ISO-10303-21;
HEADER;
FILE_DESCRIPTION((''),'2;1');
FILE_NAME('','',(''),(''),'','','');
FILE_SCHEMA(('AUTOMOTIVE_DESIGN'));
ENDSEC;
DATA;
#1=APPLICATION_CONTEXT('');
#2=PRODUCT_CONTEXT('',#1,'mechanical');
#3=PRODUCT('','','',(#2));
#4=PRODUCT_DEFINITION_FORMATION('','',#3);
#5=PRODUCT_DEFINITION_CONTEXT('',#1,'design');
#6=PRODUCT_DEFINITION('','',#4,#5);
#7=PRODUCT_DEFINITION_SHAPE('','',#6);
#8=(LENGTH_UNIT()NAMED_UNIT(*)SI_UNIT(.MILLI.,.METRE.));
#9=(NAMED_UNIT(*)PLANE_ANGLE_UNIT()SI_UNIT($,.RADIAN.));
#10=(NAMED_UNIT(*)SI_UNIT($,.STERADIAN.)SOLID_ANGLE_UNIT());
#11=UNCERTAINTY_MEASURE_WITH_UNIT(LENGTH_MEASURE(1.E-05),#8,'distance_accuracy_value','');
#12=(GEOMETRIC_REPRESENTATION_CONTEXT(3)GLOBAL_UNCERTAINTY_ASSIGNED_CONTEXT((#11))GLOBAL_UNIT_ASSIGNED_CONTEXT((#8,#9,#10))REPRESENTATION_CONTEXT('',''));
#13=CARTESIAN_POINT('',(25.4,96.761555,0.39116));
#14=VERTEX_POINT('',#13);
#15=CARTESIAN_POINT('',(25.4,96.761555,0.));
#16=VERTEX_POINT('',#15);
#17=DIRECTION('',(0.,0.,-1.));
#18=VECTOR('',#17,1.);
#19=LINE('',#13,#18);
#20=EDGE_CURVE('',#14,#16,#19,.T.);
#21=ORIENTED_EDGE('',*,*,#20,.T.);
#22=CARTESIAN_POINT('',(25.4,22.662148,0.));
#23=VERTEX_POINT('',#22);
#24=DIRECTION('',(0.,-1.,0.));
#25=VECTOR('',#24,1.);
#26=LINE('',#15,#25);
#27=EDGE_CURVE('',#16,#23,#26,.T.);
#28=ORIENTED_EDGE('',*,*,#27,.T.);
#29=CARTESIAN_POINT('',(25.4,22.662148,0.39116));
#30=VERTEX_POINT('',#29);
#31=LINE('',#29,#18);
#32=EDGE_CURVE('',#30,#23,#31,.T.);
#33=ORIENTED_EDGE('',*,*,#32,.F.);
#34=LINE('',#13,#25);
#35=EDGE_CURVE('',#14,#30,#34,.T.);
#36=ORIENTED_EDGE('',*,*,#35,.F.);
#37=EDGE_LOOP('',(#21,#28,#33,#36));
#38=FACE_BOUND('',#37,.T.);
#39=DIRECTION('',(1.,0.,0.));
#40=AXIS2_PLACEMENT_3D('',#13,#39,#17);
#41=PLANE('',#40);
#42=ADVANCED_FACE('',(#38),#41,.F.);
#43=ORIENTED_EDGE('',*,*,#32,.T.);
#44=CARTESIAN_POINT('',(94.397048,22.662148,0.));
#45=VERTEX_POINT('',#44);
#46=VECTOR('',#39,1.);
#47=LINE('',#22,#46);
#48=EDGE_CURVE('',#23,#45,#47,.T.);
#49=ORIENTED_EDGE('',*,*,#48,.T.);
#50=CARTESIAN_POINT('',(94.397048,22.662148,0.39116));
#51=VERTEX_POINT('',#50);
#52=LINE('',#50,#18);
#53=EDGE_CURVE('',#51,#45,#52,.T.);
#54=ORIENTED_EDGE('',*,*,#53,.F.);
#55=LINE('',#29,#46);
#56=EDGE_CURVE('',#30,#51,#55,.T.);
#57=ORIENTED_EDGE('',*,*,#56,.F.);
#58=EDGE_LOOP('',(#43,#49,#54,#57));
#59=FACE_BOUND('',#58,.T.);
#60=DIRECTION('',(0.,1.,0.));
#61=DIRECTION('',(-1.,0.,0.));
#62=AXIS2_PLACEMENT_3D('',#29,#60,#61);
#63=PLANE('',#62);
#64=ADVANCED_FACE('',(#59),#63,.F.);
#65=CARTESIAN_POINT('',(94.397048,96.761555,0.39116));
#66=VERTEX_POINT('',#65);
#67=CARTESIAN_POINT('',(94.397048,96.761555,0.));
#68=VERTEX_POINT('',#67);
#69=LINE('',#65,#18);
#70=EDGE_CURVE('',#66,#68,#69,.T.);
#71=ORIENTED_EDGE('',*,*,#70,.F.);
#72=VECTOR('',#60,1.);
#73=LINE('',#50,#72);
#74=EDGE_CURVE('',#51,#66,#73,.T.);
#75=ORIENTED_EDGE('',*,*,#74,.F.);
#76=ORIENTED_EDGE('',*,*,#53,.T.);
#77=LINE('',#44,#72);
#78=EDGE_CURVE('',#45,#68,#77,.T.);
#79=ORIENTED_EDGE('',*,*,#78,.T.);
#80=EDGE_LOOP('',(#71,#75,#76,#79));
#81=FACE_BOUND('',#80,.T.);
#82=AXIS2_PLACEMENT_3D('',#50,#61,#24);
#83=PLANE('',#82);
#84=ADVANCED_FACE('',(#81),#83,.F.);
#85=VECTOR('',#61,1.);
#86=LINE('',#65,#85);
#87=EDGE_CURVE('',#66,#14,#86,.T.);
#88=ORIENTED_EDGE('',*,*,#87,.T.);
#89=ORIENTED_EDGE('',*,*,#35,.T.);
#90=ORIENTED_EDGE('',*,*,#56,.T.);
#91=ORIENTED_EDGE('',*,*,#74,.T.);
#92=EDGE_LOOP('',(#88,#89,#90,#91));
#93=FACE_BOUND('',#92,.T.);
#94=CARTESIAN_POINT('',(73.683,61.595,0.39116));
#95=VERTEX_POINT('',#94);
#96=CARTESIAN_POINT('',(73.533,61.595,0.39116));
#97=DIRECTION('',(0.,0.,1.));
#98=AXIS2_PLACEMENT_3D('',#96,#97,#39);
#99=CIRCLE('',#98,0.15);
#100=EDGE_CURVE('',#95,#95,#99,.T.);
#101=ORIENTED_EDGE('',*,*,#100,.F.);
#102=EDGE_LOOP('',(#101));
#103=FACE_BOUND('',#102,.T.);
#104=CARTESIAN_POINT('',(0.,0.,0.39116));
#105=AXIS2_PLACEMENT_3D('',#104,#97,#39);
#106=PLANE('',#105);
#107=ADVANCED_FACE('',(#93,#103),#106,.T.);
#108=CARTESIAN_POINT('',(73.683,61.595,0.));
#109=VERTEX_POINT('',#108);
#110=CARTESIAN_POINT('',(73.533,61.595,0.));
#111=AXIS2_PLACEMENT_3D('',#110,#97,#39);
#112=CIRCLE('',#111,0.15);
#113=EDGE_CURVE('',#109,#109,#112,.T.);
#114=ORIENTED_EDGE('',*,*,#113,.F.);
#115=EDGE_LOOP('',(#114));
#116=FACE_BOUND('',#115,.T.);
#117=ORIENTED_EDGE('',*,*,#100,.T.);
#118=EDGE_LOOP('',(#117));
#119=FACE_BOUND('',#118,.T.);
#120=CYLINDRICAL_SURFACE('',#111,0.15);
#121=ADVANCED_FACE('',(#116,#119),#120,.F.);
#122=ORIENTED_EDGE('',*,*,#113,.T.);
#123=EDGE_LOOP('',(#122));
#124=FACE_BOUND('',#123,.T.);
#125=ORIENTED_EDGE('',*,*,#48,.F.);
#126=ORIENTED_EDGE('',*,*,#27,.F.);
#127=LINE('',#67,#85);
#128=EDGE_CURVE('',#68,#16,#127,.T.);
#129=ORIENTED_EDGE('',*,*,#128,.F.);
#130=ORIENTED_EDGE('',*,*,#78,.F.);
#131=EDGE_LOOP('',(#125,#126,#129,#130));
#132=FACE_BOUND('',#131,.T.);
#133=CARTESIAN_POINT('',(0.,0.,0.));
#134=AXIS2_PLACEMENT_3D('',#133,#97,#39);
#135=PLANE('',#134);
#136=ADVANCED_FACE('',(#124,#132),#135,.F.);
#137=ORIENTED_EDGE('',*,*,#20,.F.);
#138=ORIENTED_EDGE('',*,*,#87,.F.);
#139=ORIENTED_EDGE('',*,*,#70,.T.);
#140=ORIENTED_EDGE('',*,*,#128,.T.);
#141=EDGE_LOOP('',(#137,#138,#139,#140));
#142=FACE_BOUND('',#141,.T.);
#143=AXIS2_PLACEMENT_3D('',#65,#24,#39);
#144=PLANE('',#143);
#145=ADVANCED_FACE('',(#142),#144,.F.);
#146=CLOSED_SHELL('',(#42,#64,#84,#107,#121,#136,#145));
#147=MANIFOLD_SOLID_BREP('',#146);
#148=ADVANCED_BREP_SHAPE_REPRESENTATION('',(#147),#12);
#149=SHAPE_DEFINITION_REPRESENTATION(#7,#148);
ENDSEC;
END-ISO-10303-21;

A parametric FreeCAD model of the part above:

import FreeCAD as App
import Part
import Sketcher

V = App.Vector
Q = App.Units.Quantity


def add_polygon(sketch, points):
    """Adds a closed chain of lines whose ends are joined by coincident constraints."""
    first, n = sketch.GeometryCount, len(points)
    for a, b in zip(points, points[1:] + points[:1]):
        sketch.addGeometry(Part.LineSegment(App.Vector(*a, 0), App.Vector(*b, 0)), False)
    for i in range(n):
        sketch.addConstraint(Sketcher.Constraint("Coincident", first + i, 2, first + (i + 1) % n, 1))

doc = App.newDocument("Part")
params = doc.addObject("Spreadsheet::Sheet", "Params")
for row, (alias, value) in enumerate([
    ("pad1_length", "0.39116 mm"),
    ("sketch2_diameter", "0.3 mm"),
    ("pocket1_length", "0.39116 mm"),
], start=1):
    params.set(f"A{row}", alias)
    params.set(f"B{row}", "=" + value)
    params.setAlias(f"B{row}", alias)

body = doc.addObject("PartDesign::Body", "Body")

sketch1 = body.newObject("Sketcher::SketchObject", "Sketch")
sketch1.AttachmentSupport = (doc.getObject("XY_Plane"), [""])
sketch1.MapMode = "FlatFace"
add_polygon(sketch1, [(25.4, 96.761555), (25.4, 22.662148), (94.397048, 22.662148), (94.397048, 96.761555)])
sketch1.addConstraint(Sketcher.Constraint("Vertical", 0))
sketch1.addConstraint(Sketcher.Constraint("Horizontal", 1))
sketch1.addConstraint(Sketcher.Constraint("Vertical", 2))
sketch1.addConstraint(Sketcher.Constraint("Horizontal", 3))
sketch1.addConstraint(Sketcher.Constraint("DistanceX", -1, 1, 0, 2, Q("25.4 mm")))
sketch1.addConstraint(Sketcher.Constraint("DistanceX", 1, 1, 1, 2, Q("68.997048 mm")))
sketch1.addConstraint(Sketcher.Constraint("DistanceY", 0, 2, 0, 1, Q("74.099407 mm")))
sketch1.addConstraint(Sketcher.Constraint("DistanceY", -1, 1, 0, 2, Q("22.662148 mm")))
pad1 = body.newObject("PartDesign::Pad", "Pad")
pad1.Profile = sketch1
pad1.setExpression("Length", "Params.pad1_length")

sketch2 = body.newObject("Sketcher::SketchObject", "Sketch001")
sketch2.AttachmentSupport = (doc.getObject("XY_Plane"), [""])
sketch2.MapMode = "FlatFace"
sketch2.AttachmentOffset = App.Placement(V(0, 0, 0.39116), App.Rotation())
sketch2.addGeometry(Part.Circle(V(73.533, 61.595, 0), V(0, 0, 1), 0.15), False)
sketch2.addConstraint(Sketcher.Constraint("Diameter", 0, Q("0.3 mm")))
sketch2.addConstraint(Sketcher.Constraint("DistanceX", -1, 1, 0, 3, Q("73.533 mm")))
sketch2.addConstraint(Sketcher.Constraint("DistanceY", -1, 1, 0, 3, Q("61.595 mm")))
sketch2.setExpression("Constraints[0]", "Params.sketch2_diameter")
pocket1 = body.newObject("PartDesign::Pocket", "Pocket")
pocket1.Profile = sketch2
pocket1.setExpression("Length", "Params.pocket1_length")

doc.recompute()
